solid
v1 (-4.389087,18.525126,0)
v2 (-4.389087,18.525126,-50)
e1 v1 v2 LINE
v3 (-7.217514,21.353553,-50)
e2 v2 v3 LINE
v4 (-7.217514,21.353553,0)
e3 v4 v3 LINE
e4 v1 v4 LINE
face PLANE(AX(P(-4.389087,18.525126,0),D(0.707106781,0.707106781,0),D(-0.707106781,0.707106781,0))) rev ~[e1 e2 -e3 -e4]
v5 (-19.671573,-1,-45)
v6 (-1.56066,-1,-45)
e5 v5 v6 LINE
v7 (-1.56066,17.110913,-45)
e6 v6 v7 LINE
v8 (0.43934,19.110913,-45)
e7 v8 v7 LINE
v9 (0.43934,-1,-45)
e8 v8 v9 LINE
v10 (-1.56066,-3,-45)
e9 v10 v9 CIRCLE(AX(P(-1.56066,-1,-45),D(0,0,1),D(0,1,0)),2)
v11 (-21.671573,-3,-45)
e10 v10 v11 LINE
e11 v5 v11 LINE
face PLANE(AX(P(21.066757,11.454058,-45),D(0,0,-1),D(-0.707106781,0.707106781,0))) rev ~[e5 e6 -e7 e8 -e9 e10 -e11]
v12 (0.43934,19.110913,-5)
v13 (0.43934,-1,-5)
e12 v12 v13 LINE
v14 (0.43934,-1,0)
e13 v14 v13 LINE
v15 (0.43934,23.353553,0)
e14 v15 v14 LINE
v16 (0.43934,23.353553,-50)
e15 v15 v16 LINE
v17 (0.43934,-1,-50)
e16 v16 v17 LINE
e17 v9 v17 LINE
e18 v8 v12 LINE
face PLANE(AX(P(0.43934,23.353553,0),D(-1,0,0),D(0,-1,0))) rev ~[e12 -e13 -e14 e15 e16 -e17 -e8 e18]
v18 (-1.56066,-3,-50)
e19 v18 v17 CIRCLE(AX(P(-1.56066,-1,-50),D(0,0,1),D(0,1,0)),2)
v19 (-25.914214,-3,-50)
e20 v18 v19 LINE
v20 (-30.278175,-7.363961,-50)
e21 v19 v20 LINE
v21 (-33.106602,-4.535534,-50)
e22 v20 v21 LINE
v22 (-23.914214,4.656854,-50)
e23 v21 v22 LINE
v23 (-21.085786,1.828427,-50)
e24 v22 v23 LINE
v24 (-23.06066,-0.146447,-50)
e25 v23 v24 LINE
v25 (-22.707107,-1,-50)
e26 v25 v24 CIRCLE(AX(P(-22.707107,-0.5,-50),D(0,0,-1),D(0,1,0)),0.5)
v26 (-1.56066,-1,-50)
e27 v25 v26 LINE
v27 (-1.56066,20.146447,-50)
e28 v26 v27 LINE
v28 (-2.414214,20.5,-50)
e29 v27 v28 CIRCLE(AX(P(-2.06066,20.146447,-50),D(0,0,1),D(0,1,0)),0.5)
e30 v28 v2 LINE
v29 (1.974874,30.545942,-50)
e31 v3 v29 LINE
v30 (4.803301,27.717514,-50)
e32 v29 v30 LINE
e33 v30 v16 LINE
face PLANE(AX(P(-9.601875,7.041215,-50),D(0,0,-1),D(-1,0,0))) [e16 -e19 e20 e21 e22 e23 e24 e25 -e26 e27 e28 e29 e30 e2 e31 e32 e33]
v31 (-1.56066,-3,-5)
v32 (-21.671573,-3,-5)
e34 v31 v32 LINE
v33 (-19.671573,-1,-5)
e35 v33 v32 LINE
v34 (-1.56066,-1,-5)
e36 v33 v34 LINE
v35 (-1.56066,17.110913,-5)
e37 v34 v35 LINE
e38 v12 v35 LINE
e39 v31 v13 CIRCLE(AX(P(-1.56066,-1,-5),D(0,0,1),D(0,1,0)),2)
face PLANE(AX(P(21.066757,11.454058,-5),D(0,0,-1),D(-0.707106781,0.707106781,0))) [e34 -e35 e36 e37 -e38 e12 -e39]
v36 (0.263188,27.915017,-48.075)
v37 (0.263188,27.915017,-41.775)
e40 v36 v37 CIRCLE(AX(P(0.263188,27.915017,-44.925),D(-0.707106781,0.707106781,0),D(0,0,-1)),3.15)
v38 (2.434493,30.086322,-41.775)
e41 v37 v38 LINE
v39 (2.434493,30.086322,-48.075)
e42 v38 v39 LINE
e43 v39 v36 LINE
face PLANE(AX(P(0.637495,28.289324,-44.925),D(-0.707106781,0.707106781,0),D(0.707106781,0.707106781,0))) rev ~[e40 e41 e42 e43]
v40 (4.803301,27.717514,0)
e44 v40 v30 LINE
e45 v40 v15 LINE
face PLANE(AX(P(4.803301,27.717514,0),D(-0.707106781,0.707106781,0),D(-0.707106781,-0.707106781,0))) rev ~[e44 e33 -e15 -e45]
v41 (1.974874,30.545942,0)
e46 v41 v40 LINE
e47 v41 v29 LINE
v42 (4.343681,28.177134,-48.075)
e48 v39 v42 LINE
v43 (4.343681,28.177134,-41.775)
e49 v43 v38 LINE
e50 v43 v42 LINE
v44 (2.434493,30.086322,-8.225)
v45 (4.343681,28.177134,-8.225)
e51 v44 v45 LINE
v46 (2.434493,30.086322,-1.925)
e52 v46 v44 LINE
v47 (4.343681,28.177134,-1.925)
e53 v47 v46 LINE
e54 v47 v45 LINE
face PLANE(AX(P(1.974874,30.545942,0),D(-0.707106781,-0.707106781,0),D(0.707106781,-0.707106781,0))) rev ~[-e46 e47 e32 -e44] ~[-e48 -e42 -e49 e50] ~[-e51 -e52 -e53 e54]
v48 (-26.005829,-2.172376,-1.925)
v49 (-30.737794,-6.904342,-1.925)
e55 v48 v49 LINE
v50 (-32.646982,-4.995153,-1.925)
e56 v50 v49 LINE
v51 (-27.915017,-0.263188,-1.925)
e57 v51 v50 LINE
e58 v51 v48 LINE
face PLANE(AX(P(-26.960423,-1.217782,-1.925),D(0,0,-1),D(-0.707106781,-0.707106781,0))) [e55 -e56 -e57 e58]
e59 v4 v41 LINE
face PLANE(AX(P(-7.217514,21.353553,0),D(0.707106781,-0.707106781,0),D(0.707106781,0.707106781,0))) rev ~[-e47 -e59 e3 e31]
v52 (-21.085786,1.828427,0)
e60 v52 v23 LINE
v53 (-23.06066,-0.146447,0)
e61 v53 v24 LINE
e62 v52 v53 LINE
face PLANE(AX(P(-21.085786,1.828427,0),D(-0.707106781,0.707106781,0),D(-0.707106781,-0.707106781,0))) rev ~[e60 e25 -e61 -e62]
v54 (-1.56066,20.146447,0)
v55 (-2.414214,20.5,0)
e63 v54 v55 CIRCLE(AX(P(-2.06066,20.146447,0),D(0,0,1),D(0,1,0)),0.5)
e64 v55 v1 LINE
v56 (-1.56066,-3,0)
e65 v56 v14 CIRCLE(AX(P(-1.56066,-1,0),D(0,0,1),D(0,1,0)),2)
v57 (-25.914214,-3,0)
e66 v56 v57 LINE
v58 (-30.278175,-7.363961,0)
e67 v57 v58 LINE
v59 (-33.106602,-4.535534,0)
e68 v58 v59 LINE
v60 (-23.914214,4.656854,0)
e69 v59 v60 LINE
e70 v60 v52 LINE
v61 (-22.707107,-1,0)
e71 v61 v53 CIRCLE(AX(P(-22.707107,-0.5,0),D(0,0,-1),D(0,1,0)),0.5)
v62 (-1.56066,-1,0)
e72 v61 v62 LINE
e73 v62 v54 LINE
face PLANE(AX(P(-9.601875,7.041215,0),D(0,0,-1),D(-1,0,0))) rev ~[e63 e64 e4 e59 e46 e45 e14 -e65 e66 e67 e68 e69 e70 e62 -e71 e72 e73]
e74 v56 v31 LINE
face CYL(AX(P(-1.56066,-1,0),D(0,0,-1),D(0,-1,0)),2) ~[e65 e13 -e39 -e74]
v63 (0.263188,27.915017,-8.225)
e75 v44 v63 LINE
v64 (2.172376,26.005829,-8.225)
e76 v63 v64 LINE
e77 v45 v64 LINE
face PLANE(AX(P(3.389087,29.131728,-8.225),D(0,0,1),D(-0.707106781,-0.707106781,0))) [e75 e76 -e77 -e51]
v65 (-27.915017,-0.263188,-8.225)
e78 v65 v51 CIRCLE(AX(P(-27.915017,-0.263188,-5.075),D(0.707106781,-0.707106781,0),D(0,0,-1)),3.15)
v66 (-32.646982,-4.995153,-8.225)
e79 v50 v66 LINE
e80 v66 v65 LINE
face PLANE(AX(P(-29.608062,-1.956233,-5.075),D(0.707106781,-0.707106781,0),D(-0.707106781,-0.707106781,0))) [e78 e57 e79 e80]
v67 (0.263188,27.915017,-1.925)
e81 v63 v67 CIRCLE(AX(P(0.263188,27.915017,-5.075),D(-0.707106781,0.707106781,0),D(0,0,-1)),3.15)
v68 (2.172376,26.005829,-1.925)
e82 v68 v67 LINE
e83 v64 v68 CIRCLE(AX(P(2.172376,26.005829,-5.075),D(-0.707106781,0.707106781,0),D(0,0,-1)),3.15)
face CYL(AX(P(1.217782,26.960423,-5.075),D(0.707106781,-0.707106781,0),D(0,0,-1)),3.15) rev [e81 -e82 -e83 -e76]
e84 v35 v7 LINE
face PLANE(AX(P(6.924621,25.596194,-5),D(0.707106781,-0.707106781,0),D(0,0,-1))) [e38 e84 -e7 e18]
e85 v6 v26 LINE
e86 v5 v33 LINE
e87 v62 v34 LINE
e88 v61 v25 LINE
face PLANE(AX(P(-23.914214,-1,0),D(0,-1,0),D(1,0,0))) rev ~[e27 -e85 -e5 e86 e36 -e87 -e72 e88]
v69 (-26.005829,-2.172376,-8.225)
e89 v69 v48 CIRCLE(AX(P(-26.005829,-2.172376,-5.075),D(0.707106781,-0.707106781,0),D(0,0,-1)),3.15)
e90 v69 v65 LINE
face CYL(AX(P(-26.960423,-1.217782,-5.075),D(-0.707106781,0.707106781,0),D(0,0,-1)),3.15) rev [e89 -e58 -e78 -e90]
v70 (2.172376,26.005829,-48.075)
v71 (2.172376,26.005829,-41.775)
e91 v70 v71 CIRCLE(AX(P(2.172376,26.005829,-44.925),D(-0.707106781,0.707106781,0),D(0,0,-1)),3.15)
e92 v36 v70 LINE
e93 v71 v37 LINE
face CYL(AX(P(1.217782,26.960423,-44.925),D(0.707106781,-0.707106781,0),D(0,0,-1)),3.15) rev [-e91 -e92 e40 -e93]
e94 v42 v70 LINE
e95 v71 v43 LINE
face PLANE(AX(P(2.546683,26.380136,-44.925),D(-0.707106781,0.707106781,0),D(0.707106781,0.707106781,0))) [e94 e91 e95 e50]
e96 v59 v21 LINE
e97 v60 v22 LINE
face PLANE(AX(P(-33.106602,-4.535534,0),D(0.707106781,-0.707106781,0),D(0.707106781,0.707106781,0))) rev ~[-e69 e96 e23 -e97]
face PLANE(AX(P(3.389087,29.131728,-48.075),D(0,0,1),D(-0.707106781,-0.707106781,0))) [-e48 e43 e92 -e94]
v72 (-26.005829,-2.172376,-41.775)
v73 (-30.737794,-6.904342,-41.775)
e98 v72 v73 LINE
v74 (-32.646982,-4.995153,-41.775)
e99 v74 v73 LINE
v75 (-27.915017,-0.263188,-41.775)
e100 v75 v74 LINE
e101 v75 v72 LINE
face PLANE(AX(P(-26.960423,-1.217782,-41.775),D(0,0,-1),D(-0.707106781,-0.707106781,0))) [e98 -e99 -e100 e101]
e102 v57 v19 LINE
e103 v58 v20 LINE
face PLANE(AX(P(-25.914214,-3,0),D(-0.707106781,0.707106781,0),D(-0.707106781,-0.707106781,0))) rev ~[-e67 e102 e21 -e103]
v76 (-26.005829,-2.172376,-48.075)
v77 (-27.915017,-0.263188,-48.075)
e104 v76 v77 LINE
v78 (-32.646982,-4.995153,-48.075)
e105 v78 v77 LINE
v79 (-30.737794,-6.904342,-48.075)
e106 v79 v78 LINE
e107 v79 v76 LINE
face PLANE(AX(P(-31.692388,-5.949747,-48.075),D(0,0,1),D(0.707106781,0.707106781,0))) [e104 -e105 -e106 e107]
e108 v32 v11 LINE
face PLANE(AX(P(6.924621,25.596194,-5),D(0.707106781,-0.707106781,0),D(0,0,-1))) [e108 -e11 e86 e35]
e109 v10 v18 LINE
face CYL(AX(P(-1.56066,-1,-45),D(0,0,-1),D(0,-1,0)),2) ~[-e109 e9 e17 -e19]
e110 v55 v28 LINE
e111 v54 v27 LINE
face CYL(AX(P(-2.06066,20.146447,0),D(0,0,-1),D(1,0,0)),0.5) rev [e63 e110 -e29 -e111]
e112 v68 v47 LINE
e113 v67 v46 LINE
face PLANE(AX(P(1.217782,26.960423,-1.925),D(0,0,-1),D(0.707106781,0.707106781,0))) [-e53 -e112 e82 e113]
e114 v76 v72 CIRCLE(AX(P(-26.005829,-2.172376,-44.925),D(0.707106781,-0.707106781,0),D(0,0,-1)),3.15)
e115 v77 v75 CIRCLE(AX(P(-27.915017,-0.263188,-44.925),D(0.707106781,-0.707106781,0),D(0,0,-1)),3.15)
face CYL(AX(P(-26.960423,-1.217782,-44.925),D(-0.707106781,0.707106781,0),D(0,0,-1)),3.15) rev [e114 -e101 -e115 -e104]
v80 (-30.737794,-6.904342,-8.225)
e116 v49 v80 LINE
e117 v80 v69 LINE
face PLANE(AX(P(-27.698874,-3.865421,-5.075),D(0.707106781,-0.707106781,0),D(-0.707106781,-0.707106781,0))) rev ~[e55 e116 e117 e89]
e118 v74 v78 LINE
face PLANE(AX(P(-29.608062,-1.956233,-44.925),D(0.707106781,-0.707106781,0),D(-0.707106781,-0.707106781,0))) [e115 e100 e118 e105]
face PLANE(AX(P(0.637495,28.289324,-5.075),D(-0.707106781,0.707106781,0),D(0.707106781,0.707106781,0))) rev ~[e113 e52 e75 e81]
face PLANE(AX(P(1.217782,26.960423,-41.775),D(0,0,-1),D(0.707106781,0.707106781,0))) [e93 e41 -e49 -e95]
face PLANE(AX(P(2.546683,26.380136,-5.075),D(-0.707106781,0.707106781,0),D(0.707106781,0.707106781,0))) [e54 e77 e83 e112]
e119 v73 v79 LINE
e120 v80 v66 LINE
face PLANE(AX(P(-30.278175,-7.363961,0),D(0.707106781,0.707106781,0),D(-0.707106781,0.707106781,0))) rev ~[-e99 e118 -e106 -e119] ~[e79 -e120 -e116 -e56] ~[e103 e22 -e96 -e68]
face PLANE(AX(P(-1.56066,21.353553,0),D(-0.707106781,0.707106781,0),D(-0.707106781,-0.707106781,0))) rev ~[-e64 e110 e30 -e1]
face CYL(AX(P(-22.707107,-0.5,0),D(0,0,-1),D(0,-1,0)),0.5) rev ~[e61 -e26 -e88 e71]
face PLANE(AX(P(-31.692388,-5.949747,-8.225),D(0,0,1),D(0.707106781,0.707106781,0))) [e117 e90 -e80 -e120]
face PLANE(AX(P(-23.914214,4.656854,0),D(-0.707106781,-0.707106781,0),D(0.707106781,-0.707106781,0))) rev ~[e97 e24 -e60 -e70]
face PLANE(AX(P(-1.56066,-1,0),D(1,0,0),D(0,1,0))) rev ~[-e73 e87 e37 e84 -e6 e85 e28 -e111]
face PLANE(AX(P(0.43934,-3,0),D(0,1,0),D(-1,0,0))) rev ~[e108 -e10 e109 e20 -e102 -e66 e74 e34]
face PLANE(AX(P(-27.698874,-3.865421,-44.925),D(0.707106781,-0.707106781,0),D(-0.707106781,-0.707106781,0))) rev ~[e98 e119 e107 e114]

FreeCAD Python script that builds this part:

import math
import FreeCAD as App
import Part
import Sketcher
from FreeCAD import Vector


def edges_at(feature, points):
    """Names of the edges that pass closest to the given points."""
    edges = feature.Shape.Edges
    near = lambda p: min(range(len(edges)), key=lambda i: edges[i].distToShape(Part.Vertex(*p))[0])
    return sorted({f"Edge{near(p) + 1}" for p in points})

doc = App.newDocument("Part")
params = doc.addObject("Spreadsheet::Sheet", "Params")
for row, (alias, value) in enumerate([
    ("sketch1_length", "4 mm"),
    ("sketch1_length2", "13 mm"),
    ("pad1_length", "50 mm"),
    ("sketch2_radius", "3.15 mm"),
    ("pocket1_length", "1.35 mm"),
    ("pocket1_length2", "1.35 mm"),
    ("sketch3_width", "40 mm"),
    ("sketch3_height", "20 mm"),
    ("fillet_radius", "0.5 mm"),
    ("fillet2_radius", "2 mm"),
], start=1):
    params.set(f"A{row}", alias)
    params.set(f"B{row}", "=" + value)
    params.setAlias(f"B{row}", alias)

body = doc.addObject("PartDesign::Body", "Body")

sketch1 = body.newObject("Sketcher::SketchObject", "Sketch")
sketch1.AttachmentSupport = (doc.getObject("XY_Plane"), [""])
sketch1.MapMode = "FlatFace"
sketch1.addGeometry([
    Part.LineSegment(Vector(-1.56066, -1, 0), Vector(-23.914214, -1, 0)),
    Part.LineSegment(Vector(-23.914214, -1, 0), Vector(-21.085786, 1.828427, 0)),
    Part.LineSegment(Vector(-21.085786, 1.828427, 0), Vector(-23.914214, 4.656854, 0)),
    Part.LineSegment(Vector(-23.914214, 4.656854, 0), Vector(-33.106602, -4.535534, 0)),
    Part.LineSegment(Vector(-33.106602, -4.535534, 0), Vector(-30.278175, -7.363961, 0)),
    Part.LineSegment(Vector(-30.278175, -7.363961, 0), Vector(-25.914214, -3, 0)),
    Part.LineSegment(Vector(-25.914214, -3, 0), Vector(0.43934, -3, 0)),
    Part.LineSegment(Vector(0.43934, -3, 0), Vector(0.43934, 23.353553, 0)),
    Part.LineSegment(Vector(0.43934, 23.353553, 0), Vector(4.803301, 27.717514, 0)),
    Part.LineSegment(Vector(4.803301, 27.717514, 0), Vector(1.974874, 30.545942, 0)),
    Part.LineSegment(Vector(1.974874, 30.545942, 0), Vector(-7.217514, 21.353553, 0)),
    Part.LineSegment(Vector(-7.217514, 21.353553, 0), Vector(-4.389087, 18.525126, 0)),
    Part.LineSegment(Vector(-4.389087, 18.525126, 0), Vector(-1.56066, 21.353553, 0)),
    Part.LineSegment(Vector(-1.56066, 21.353553, 0), Vector(-1.56066, -1, 0)),
], False)
sketch1.addConstraint([
    Sketcher.Constraint("Coincident", 0, 2, 1, 1),
    Sketcher.Constraint("Coincident", 1, 2, 2, 1),
    Sketcher.Constraint("Coincident", 2, 2, 3, 1),
    Sketcher.Constraint("Coincident", 3, 2, 4, 1),
    Sketcher.Constraint("Coincident", 4, 2, 5, 1),
    Sketcher.Constraint("Coincident", 5, 2, 6, 1),
    Sketcher.Constraint("Coincident", 6, 2, 7, 1),
    Sketcher.Constraint("Coincident", 7, 2, 8, 1),
    Sketcher.Constraint("Coincident", 8, 2, 9, 1),
    Sketcher.Constraint("Coincident", 9, 2, 10, 1),
    Sketcher.Constraint("Coincident", 10, 2, 11, 1),
    Sketcher.Constraint("Coincident", 11, 2, 12, 1),
    Sketcher.Constraint("Coincident", 12, 2, 13, 1),
    Sketcher.Constraint("Coincident", 13, 2, 0, 1),
    Sketcher.Constraint("Horizontal", 0),
    Sketcher.Constraint("Horizontal", 6),
    Sketcher.Constraint("Vertical", 7),
    Sketcher.Constraint("Vertical", 13),
    Sketcher.Constraint("Perpendicular", 1, 2),
    Sketcher.Constraint("Perpendicular", 2, 3),
    Sketcher.Constraint("Perpendicular", 3, 4),
    Sketcher.Constraint("Perpendicular", 4, 5),
    Sketcher.Constraint("Parallel", 5, 8),
    Sketcher.Constraint("Perpendicular", 8, 9),
    Sketcher.Constraint("Perpendicular", 9, 10),
    Sketcher.Constraint("Perpendicular", 10, 11),
    Sketcher.Constraint("Perpendicular", 11, 12),
    Sketcher.Constraint("Horizontal", 10, 2, 12, 2),
    Sketcher.Constraint("Vertical", 0, 2, 2, 2),
    Sketcher.Constraint("Equal", 6, 7),
    Sketcher.Constraint("Equal", 0, 13),
    Sketcher.Constraint("Equal", 1, 2),
    Sketcher.Constraint("Equal", 2, 4),
    Sketcher.Constraint("Equal", 5, 8),
    Sketcher.Constraint("Equal", 4, 9),
    Sketcher.Constraint("Equal", 3, 10),
    Sketcher.Constraint("Distance", 1, 4.0),
    Sketcher.Constraint("Distance", 3, 13.0),
    Sketcher.Constraint("DistanceY", 0, 2, -1, 1, 1.0),
    Sketcher.Constraint("DistanceY", 5, 2, -1, 1, 3.0),
    Sketcher.Constraint("DistanceX", 3, 2, -1, 1, 33.106602),
    Sketcher.Constraint("DistanceX", -1, 1, 8, 2, 4.803301),
])
sketch1.setExpression("Constraints[36]", "Params.sketch1_length")
sketch1.setExpression("Constraints[37]", "Params.sketch1_length2")
pad1 = body.newObject("PartDesign::Pad", "Pad")
pad1.Profile = sketch1
pad1.setExpression("Length", "Params.pad1_length")
pad1.Reversed = True

sketch2 = body.newObject("Sketcher::SketchObject", "Sketch001")
sketch2.Placement = App.Placement(Vector(-12.87132, 12.87132, 0), App.Rotation(Vector(0.707106781, 0.707106781, 0), Vector(0, 0, -0.999999999), Vector(-0.707106781, 0.707106781, 0), "ZXY"))
sketch2.addGeometry([
    Part.LineSegment(Vector(19.925, 1.925, 0), Vector(22.995689, 1.925, 0)),
    Part.LineSegment(Vector(22.995689, 1.925, 0), Vector(22.995689, 8.225, 0)),
    Part.LineSegment(Vector(22.995689, 8.225, 0), Vector(19.925, 8.225, 0)),
    Part.ArcOfCircle(Part.Circle(Vector(19.925, 5.075, 0), Vector(0, 0, 1), 3.15), math.radians(90), math.radians(270)),
    Part.LineSegment(Vector(19.925, 41.775, 0), Vector(22.995689, 41.775, 0)),
    Part.LineSegment(Vector(22.995689, 41.775, 0), Vector(22.995689, 48.075, 0)),
    Part.LineSegment(Vector(22.995689, 48.075, 0), Vector(19.925, 48.075, 0)),
    Part.ArcOfCircle(Part.Circle(Vector(19.925, 44.925, 0), Vector(0, 0, 1), 3.15), math.radians(90), math.radians(270)),
    Part.LineSegment(Vector(-26.617009, 1.925, 0), Vector(-19.925, 1.925, 0)),
    Part.ArcOfCircle(Part.Circle(Vector(-19.925, 5.075, 0), Vector(0, 0, 1), 3.15), math.radians(-90), math.radians(90)),
    Part.LineSegment(Vector(-19.925, 8.225, 0), Vector(-26.617009, 8.225, 0)),
    Part.LineSegment(Vector(-26.617009, 8.225, 0), Vector(-26.617009, 1.925, 0)),
    Part.LineSegment(Vector(-26.617009, 41.775, 0), Vector(-19.925, 41.775, 0)),
    Part.ArcOfCircle(Part.Circle(Vector(-19.925, 44.925, 0), Vector(0, 0, 1), 3.15), math.radians(-90), math.radians(90)),
    Part.LineSegment(Vector(-19.925, 48.075, 0), Vector(-26.617009, 48.075, 0)),
    Part.LineSegment(Vector(-26.617009, 48.075, 0), Vector(-26.617009, 41.775, 0)),
], False)
sketch2.addConstraint([
    Sketcher.Constraint("Coincident", 0, 2, 1, 1),
    Sketcher.Constraint("Coincident", 1, 2, 2, 1),
    Sketcher.Constraint("Tangent", 2, 2, 3, 1),
    Sketcher.Constraint("Tangent", 3, 2, 0, 1),
    Sketcher.Constraint("Coincident", 4, 2, 5, 1),
    Sketcher.Constraint("Coincident", 5, 2, 6, 1),
    Sketcher.Constraint("Tangent", 6, 2, 7, 1),
    Sketcher.Constraint("Tangent", 7, 2, 4, 1),
    Sketcher.Constraint("Tangent", 8, 2, 9, 1),
    Sketcher.Constraint("Tangent", 9, 2, 10, 1),
    Sketcher.Constraint("Coincident", 10, 2, 11, 1),
    Sketcher.Constraint("Coincident", 11, 2, 8, 1),
    Sketcher.Constraint("Tangent", 12, 2, 13, 1),
    Sketcher.Constraint("Tangent", 13, 2, 14, 1),
    Sketcher.Constraint("Coincident", 14, 2, 15, 1),
    Sketcher.Constraint("Coincident", 15, 2, 12, 1),
    Sketcher.Constraint("Horizontal", 0),
    Sketcher.Constraint("Vertical", 1),
    Sketcher.Constraint("Horizontal", 2),
    Sketcher.Constraint("Horizontal", 4),
    Sketcher.Constraint("Vertical", 5),
    Sketcher.Constraint("Horizontal", 6),
    Sketcher.Constraint("Horizontal", 8),
    Sketcher.Constraint("Horizontal", 10),
    Sketcher.Constraint("Vertical", 11),
    Sketcher.Constraint("Horizontal", 12),
    Sketcher.Constraint("Horizontal", 14),
    Sketcher.Constraint("Vertical", 15),
    Sketcher.Constraint("Equal", 3, 7),
    Sketcher.Constraint("Equal", 7, 9),
    Sketcher.Constraint("Equal", 9, 13),
    Sketcher.Constraint("Symmetric", 3, 3, 9, 3, -2),
    Sketcher.Constraint("Symmetric", 7, 3, 13, 3, -2),
    Sketcher.Constraint("Vertical", 3, 3, 7, 3),
    Sketcher.Constraint("Vertical", 1, 2, 4, 2),
    Sketcher.Constraint("Vertical", 11, 2, 14, 2),
    Sketcher.Constraint("Radius", 3, 3.15),
    Sketcher.Constraint("DistanceY", 0, 2, 7, 3, 43.0),
    Sketcher.Constraint("DistanceX", 9, 3, 3, 3, 39.85),
    Sketcher.Constraint("DistanceY", -1, 1, 3, 3, 5.075),
    Sketcher.Constraint("DistanceX", 0, 1, 0, 2, 3.070689),
    Sketcher.Constraint("DistanceX", 8, 1, 8, 2, 6.692009),
])
sketch2.setExpression("Constraints[36]", "Params.sketch2_radius")
pocket1 = body.newObject("PartDesign::Pocket", "Pocket")
pocket1.Profile = sketch2
pocket1.Type = "TwoLengths"
pocket1.setExpression("Length", "Params.pocket1_length")
pocket1.setExpression("Length2", "Params.pocket1_length2")
pocket1.Reversed = True

sketch3 = body.newObject("Sketcher::SketchObject", "Sketch002")
sketch3.Placement = App.Placement(Vector(16.260408, 16.260408, 0), App.Rotation(Vector(0, 0, -1), Vector(-0.707106781, 0.707106781, 0), Vector(0.707106781, 0.707106781, 0), "ZXY"))
sketch3.addGeometry([
    Part.LineSegment(Vector(5, 13.202796, 0), Vector(5, -6.797204, 0)),
    Part.LineSegment(Vector(5, -6.797204, 0), Vector(45, -6.797204, 0)),
    Part.LineSegment(Vector(45, -6.797204, 0), Vector(45, 13.202796, 0)),
    Part.LineSegment(Vector(45, 13.202796, 0), Vector(5, 13.202796, 0)),
], False)
sketch3.addConstraint([
    Sketcher.Constraint("Coincident", 0, 2, 1, 1),
    Sketcher.Constraint("Coincident", 1, 2, 2, 1),
    Sketcher.Constraint("Coincident", 2, 2, 3, 1),
    Sketcher.Constraint("Coincident", 3, 2, 0, 1),
    Sketcher.Constraint("Vertical", 0),
    Sketcher.Constraint("Horizontal", 1),
    Sketcher.Constraint("Vertical", 2),
    Sketcher.Constraint("Horizontal", 3),
    Sketcher.Constraint("DistanceX", 1, 1, 1, 2, 40.0),
    Sketcher.Constraint("DistanceY", 0, 2, 0, 1, 20.0),
    Sketcher.Constraint("DistanceX", -1, 1, 0, 2, 5.0),
    Sketcher.Constraint("DistanceY", 0, 2, -1, 1, 6.797204),
])
sketch3.setExpression("Constraints[8]", "Params.sketch3_width")
sketch3.setExpression("Constraints[9]", "Params.sketch3_height")
pocket2 = body.newObject("PartDesign::Pocket", "Pocket001")
pocket2.Profile = sketch3
pocket2.Type = "ThroughAll"
doc.recompute()

fillet = body.newObject("PartDesign::Fillet", "Fillet")
fillet.Base = (pocket2, edges_at(pocket2, [(-1.561, 21.354, -25), (-23.914, -1, -25)]))
fillet.setExpression("Radius", "Params.fillet_radius")
doc.recompute()

fillet2 = body.newObject("PartDesign::Fillet", "Fillet001")
fillet2.Base = (fillet, edges_at(fillet, [(0.439, -3, -47.5), (0.439, -3, -2.5)]))
fillet2.setExpression("Radius", "Params.fillet2_radius")

doc.recompute()
